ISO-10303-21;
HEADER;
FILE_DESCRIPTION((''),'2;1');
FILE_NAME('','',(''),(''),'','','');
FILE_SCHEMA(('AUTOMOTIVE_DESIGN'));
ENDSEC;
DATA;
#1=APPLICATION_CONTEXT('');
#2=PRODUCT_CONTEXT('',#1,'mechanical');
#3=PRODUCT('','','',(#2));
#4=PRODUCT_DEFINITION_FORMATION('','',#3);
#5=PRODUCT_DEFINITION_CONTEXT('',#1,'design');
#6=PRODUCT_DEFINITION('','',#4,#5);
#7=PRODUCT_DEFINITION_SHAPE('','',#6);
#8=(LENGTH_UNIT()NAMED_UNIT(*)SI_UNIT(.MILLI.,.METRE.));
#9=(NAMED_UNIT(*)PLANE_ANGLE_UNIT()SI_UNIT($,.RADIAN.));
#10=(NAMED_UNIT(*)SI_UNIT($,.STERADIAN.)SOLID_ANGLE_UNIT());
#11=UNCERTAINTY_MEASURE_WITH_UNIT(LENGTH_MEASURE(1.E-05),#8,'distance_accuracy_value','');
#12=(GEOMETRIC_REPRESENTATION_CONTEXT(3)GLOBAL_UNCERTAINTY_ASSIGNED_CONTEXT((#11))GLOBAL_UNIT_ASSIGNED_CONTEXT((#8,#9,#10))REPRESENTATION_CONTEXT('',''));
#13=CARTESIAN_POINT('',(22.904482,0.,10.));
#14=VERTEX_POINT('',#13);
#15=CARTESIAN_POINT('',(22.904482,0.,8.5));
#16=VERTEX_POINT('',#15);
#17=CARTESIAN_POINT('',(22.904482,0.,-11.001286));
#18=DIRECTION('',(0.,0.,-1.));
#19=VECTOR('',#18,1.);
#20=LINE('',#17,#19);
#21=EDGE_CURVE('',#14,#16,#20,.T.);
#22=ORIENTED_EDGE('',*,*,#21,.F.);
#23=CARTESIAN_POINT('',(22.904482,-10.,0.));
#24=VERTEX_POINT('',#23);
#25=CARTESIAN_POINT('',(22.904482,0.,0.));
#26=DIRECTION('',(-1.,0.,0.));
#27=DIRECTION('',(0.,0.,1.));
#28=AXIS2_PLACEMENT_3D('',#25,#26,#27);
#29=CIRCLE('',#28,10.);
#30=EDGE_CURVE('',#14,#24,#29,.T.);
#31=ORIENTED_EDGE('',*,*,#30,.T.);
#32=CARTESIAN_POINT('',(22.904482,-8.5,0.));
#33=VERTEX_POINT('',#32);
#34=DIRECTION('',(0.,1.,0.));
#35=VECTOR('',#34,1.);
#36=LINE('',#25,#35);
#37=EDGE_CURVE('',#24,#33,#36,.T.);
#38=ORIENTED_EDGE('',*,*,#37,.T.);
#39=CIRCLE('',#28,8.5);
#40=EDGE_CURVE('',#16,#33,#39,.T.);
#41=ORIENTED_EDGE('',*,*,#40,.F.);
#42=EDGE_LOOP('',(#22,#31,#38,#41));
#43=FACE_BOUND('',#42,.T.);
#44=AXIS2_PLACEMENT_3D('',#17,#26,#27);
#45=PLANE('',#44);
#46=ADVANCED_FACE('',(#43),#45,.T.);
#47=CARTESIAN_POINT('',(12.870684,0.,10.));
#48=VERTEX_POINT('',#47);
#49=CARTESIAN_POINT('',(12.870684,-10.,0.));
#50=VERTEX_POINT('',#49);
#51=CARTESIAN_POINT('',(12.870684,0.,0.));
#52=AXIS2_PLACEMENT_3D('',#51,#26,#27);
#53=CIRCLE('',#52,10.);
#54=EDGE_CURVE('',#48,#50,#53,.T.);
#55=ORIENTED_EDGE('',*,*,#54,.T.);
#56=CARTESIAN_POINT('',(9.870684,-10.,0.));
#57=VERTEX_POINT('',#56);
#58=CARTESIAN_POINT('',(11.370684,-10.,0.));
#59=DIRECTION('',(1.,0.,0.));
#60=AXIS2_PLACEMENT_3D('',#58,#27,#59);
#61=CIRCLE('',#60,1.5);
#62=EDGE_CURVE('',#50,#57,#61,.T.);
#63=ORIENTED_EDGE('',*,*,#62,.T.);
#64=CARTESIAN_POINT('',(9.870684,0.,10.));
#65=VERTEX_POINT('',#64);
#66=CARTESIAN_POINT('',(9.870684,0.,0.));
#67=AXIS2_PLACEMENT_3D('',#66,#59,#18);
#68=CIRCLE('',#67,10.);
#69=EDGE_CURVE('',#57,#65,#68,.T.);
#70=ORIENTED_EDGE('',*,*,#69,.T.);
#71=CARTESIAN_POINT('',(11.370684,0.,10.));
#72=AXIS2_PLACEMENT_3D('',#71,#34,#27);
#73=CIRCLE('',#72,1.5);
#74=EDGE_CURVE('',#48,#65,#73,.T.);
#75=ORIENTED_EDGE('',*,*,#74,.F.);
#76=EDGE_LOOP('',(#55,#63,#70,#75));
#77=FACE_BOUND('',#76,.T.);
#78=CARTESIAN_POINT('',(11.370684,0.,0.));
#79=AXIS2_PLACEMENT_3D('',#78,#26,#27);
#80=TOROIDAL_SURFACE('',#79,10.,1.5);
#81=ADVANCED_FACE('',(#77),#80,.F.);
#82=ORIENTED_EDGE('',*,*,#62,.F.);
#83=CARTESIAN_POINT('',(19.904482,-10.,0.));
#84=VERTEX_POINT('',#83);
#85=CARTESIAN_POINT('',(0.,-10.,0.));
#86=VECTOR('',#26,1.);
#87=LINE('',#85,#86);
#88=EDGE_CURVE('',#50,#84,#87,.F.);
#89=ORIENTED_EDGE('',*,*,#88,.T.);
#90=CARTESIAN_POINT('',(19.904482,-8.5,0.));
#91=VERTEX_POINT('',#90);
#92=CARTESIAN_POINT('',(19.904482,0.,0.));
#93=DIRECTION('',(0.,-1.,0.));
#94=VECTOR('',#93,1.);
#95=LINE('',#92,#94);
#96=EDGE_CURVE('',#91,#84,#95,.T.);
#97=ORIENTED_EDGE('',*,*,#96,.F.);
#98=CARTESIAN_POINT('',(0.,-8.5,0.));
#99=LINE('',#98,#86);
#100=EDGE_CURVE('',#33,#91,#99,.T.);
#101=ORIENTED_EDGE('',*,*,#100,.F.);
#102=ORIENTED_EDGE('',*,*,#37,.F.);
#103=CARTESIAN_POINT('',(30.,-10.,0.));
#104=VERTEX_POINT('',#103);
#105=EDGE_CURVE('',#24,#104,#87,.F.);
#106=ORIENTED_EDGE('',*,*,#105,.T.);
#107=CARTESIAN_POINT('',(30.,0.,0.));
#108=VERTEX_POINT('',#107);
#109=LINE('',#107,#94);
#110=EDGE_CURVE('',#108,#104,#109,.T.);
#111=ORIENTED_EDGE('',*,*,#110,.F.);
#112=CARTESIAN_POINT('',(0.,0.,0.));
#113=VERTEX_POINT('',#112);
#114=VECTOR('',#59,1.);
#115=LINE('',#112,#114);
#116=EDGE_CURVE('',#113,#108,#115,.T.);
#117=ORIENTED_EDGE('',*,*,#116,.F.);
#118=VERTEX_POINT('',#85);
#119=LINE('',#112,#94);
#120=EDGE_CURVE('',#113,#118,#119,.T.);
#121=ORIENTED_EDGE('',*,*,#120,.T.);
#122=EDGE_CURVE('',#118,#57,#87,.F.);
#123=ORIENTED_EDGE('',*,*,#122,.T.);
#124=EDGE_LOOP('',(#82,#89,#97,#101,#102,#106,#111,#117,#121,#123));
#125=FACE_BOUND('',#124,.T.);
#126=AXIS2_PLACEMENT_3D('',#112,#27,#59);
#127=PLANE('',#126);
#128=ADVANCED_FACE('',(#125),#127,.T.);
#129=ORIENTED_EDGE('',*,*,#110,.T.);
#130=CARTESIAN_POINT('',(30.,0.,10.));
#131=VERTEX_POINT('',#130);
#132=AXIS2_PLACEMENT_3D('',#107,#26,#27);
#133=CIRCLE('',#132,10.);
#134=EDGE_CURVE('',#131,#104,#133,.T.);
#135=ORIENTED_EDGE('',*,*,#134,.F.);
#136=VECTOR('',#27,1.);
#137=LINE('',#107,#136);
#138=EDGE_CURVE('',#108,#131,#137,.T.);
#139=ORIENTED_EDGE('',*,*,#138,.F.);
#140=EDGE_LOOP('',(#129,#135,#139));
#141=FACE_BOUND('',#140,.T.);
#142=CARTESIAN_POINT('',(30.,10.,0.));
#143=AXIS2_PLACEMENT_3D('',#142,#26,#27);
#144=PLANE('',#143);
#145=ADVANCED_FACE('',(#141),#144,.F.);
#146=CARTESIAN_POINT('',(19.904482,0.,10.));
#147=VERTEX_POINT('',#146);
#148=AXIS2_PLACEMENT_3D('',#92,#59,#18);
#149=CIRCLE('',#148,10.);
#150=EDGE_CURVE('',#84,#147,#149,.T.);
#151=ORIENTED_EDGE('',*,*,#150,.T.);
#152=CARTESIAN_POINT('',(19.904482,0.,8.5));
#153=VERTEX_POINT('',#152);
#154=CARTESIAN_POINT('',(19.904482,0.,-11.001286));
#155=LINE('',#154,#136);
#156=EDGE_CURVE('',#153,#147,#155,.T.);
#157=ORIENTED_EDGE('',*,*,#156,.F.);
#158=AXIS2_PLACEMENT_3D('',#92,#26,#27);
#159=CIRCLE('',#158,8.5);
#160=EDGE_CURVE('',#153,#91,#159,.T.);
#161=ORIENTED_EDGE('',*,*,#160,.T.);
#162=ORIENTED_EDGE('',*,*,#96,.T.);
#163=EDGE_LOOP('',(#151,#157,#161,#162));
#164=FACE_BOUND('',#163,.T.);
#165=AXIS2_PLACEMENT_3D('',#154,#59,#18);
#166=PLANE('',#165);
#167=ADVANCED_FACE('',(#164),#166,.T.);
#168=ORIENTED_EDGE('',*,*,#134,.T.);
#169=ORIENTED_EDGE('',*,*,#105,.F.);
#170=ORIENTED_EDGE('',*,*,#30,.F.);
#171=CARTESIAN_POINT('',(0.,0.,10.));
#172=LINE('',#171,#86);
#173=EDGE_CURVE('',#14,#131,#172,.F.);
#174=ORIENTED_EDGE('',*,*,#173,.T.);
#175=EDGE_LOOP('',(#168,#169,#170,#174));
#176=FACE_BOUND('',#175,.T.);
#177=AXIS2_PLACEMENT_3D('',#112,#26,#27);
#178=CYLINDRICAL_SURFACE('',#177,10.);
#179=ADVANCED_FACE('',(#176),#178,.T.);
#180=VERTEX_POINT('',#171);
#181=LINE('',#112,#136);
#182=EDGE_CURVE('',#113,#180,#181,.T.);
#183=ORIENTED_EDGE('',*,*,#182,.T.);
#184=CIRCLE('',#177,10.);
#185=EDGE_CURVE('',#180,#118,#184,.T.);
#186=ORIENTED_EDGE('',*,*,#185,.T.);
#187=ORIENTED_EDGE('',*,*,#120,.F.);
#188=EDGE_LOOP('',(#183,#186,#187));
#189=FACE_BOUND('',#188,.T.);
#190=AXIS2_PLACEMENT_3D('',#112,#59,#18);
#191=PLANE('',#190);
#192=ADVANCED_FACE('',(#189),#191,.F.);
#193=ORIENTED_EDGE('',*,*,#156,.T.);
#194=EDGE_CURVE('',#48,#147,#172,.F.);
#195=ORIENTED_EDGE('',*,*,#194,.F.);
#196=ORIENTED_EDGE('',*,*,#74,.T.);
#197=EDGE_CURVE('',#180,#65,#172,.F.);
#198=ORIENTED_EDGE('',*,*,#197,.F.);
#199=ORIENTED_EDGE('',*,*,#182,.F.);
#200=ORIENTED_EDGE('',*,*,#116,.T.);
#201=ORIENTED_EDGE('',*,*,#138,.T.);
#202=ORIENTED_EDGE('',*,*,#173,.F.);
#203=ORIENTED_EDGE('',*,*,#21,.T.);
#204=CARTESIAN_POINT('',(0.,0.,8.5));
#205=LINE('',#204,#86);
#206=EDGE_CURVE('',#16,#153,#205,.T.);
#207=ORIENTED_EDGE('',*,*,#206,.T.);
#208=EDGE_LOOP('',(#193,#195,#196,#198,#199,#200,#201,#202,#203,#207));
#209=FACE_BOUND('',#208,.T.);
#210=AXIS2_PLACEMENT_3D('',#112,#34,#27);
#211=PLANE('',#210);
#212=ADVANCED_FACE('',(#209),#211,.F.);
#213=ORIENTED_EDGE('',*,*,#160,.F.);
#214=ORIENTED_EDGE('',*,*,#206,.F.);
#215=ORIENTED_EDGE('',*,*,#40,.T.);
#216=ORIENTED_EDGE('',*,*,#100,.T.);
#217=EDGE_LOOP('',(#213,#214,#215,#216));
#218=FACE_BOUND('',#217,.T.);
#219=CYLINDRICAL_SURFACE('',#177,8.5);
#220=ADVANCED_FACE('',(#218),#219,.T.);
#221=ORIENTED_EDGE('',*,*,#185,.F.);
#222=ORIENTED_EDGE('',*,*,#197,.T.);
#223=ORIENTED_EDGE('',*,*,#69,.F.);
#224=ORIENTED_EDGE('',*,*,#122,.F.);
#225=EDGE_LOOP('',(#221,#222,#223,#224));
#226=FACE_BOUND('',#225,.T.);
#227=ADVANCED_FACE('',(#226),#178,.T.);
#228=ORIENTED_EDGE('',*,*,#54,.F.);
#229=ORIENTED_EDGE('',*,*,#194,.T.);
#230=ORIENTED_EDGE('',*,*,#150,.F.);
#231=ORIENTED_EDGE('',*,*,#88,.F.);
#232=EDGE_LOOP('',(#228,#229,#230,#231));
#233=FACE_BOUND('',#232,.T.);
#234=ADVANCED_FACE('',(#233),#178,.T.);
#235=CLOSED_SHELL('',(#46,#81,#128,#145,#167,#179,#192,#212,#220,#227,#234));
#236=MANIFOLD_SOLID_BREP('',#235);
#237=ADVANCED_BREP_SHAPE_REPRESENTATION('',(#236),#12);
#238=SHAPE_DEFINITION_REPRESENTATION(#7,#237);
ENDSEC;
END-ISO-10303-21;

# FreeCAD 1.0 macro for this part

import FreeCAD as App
import Part
import Sketcher
from FreeCAD import Vector


def add_polygon(sketch, points):
    """Adds a closed chain of lines whose ends are joined by coincident constraints."""
    first, n = sketch.GeometryCount, len(points)
    for a, b in zip(points, points[1:] + points[:1]):
        sketch.addGeometry(Part.LineSegment(App.Vector(*a, 0), App.Vector(*b, 0)), False)
    for i in range(n):
        sketch.addConstraint(Sketcher.Constraint("Coincident", first + i, 2, first + (i + 1) % n, 1))

doc = App.newDocument("Part")
body = doc.addObject("PartDesign::Body", "Body")

sketch1 = body.newObject("Sketcher::SketchObject", "Sketch")
sketch1.AttachmentSupport = (doc.getObject("XY_Plane"), [""])
sketch1.MapMode = "FlatFace"
add_polygon(sketch1, [(0, 10), (0, 0), (30, 0), (30, 10)])
sketch1.addConstraint([
    Sketcher.Constraint("Vertical", 0),
    Sketcher.Constraint("Horizontal", 1),
    Sketcher.Constraint("Vertical", 2),
    Sketcher.Constraint("Horizontal", 3),
    Sketcher.Constraint("Coincident", 0, 2, -1, 1),
    Sketcher.Constraint("DistanceX", 1, 1, 1, 2, 30.0),
    Sketcher.Constraint("DistanceY", 0, 2, 0, 1, 10.0),
])
revolution = body.newObject("PartDesign::Revolution", "Revolution")
revolution.Profile = sketch1
revolution.ReferenceAxis = (sketch1, ["H_Axis"])
revolution.Angle = 360

sketch2 = body.newObject("Sketcher::SketchObject", "Sketch001")
sketch2.AttachmentSupport = (doc.getObject("XZ_Plane"), [""])
sketch2.MapMode = "FlatFace"
sketch2.addGeometry(Part.Circle(Vector(11.370684, -10, 0), Vector(0, 0, 1), 1.5), False)
add_polygon(sketch2, [(19.904482, -11.001286), (19.904482, -8.5), (22.904482, -8.5), (22.904482, -11.001286)])
sketch2.addConstraint([
    Sketcher.Constraint("Vertical", 1),
    Sketcher.Constraint("Horizontal", 2),
    Sketcher.Constraint("Vertical", 3),
    Sketcher.Constraint("Horizontal", 4),
    Sketcher.Constraint("Diameter", 0, 3.0),
    Sketcher.Constraint("DistanceX", 2, 1, 2, 2, 3.0),
    Sketcher.Constraint("DistanceY", 0, 3, -1, 1, 10.0),
    Sketcher.Constraint("DistanceY", 1, 2, -1, 1, 8.5),
    Sketcher.Constraint("DistanceY", 1, 1, 1, 2, 2.501286),
    Sketcher.Constraint("DistanceX", -1, 1, 1, 2, 19.904482),
    Sketcher.Constraint("DistanceX", -1, 1, 0, 3, 11.370684),
])
groove = body.newObject("PartDesign::Groove", "Groove")
groove.Profile = sketch2
groove.ReferenceAxis = (sketch2, ["H_Axis"])
groove.Angle = 360

sketch3 = body.newObject("Sketcher::SketchObject", "Sketch002")
sketch3.AttachmentSupport = (doc.getObject("YZ_Plane"), [""])
sketch3.MapMode = "FlatFace"
sketch3.AttachmentOffset = App.Placement(Vector(0, 0, 30), App.Rotation())
add_polygon(sketch3, [(0, 24.738109), (-14.721676, 24.738109), (-14.721676, 0), (0, 0)])
sketch3.addConstraint([
    Sketcher.Constraint("Horizontal", 0),
    Sketcher.Constraint("Vertical", 1),
    Sketcher.Constraint("Horizontal", 2),
    Sketcher.Constraint("Vertical", 3),
    Sketcher.Constraint("Coincident", 2, 2, -1, 1),
    Sketcher.Constraint("DistanceY", 1, 2, 1, 1, 24.738109),
    Sketcher.Constraint("DistanceX", 0, 2, 0, 1, 14.721676),
])
pocket1 = body.newObject("PartDesign::Pocket", "Pocket")
pocket1.Profile = sketch3
pocket1.Type = "ThroughAll"

doc.recompute()
